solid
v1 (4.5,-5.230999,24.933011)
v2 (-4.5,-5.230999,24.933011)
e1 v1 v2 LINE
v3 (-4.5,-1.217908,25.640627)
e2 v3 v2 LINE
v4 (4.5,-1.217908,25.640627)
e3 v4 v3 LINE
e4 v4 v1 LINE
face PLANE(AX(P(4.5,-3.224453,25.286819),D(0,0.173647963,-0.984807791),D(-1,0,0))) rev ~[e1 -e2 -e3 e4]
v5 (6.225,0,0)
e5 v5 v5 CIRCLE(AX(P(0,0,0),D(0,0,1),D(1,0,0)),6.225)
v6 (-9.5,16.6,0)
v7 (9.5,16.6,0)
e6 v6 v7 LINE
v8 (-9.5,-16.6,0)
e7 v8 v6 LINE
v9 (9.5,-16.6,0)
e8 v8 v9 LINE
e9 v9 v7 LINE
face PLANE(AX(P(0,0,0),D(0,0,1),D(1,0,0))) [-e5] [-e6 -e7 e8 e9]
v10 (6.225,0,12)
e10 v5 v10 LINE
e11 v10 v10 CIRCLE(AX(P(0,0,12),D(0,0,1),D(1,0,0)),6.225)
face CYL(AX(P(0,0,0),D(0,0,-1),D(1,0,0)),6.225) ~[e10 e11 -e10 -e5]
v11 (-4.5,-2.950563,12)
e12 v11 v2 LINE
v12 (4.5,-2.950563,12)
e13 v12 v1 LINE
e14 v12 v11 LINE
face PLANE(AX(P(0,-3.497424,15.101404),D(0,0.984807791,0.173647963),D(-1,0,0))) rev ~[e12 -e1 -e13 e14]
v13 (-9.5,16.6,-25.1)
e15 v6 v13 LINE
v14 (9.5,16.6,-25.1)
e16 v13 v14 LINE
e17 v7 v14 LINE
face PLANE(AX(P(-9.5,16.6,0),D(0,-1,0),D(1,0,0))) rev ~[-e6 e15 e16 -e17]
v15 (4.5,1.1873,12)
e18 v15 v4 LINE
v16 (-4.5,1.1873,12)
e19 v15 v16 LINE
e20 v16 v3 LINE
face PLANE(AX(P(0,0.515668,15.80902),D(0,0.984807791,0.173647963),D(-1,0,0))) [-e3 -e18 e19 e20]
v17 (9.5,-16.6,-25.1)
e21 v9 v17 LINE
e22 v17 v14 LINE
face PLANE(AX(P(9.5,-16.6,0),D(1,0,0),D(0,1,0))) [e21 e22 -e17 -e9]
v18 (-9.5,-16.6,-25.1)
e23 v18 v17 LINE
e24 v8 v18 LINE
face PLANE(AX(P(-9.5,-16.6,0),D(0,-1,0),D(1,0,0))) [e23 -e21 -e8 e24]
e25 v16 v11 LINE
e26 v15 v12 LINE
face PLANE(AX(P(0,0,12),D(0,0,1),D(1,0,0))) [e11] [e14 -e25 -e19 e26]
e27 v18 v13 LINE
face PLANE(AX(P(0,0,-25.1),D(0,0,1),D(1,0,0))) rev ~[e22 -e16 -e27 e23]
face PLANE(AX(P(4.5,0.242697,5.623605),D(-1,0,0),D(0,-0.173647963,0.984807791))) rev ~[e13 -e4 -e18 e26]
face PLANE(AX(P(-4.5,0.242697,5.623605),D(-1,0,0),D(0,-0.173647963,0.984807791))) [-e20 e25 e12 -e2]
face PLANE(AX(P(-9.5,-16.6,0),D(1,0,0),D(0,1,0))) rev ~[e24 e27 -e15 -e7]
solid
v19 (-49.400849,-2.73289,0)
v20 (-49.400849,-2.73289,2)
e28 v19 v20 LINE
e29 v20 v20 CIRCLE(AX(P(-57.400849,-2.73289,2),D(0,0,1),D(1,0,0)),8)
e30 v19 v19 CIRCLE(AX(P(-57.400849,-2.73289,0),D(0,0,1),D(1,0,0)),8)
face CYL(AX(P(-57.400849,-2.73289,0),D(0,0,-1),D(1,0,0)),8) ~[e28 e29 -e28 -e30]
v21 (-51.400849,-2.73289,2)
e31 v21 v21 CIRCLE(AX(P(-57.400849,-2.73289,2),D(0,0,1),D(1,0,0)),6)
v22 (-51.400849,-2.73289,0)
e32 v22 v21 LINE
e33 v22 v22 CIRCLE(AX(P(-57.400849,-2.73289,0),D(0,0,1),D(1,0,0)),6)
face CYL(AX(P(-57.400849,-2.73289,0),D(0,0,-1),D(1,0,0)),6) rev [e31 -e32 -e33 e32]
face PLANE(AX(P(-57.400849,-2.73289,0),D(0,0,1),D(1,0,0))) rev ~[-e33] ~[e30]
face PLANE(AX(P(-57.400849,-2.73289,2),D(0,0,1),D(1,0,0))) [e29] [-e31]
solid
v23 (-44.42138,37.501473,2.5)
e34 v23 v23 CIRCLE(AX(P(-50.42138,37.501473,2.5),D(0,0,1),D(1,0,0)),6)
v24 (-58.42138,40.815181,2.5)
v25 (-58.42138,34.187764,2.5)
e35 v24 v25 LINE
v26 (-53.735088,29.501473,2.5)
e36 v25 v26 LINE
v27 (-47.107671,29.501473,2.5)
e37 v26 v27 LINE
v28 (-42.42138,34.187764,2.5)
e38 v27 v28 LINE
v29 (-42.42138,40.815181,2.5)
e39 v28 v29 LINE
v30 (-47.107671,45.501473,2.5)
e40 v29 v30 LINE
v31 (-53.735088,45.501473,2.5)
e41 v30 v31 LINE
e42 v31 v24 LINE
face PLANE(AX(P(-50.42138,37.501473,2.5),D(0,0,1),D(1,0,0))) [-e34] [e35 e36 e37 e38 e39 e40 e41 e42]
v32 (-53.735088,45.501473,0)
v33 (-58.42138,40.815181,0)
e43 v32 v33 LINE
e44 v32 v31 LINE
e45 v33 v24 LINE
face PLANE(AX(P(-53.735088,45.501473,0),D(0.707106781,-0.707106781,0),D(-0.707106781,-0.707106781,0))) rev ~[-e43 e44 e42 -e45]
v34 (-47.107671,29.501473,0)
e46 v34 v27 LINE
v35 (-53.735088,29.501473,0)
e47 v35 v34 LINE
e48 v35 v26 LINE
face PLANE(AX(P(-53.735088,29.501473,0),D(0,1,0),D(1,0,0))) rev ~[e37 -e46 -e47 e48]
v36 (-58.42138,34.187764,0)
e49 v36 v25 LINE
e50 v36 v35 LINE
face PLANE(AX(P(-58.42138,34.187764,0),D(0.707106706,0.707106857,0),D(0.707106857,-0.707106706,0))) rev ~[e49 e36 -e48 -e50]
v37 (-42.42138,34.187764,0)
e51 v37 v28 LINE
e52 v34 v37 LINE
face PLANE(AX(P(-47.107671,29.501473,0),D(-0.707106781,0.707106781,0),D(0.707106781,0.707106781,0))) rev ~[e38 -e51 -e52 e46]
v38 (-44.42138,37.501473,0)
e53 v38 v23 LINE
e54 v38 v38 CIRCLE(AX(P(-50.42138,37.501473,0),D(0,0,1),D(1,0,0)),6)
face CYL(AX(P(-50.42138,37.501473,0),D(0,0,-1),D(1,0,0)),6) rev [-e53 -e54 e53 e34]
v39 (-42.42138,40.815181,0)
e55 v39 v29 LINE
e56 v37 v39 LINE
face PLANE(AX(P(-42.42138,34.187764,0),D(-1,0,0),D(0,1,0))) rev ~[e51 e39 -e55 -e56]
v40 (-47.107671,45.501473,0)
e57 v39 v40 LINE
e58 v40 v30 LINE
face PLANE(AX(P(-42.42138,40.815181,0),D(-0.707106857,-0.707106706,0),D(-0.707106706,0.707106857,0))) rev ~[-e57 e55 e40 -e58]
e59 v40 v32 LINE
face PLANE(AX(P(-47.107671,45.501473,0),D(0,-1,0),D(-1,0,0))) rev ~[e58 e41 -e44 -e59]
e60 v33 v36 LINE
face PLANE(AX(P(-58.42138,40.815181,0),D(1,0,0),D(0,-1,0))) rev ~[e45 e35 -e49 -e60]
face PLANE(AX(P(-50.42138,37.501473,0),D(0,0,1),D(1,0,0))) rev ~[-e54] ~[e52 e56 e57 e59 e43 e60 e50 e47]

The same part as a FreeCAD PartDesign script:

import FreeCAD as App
import Part
import Sketcher
Q = App.Units.Quantity


def add_polygon(sketch, points):
    """Adds a closed chain of lines whose ends are joined by coincident constraints."""
    first, n = sketch.GeometryCount, len(points)
    for a, b in zip(points, points[1:] + points[:1]):
        sketch.addGeometry(Part.LineSegment(App.Vector(*a, 0), App.Vector(*b, 0)), False)
    for i in range(n):
        sketch.addConstraint(Sketcher.Constraint("Coincident", first + i, 2, first + (i + 1) % n, 1))

doc = App.newDocument("Part")
params = doc.addObject("Spreadsheet::Sheet", "Params")
for row, (alias, value) in enumerate([
    ("sketch1_width", "19 mm"),
    ("sketch1_height", "33.2 mm"),
    ("pad1_length", "25.1 mm"),
    ("sketch2_diameter", "12.45 mm"),
    ("pad2_length", "12 mm"),
    ("sketch3_width", "9 mm"),
    ("pad3_length", "4.075 mm"),
    ("sketch4_diameter", "16 mm"),
    ("sketch4_diameter2", "12 mm"),
    ("pad4_length", "2 mm"),
    ("sketch5_diameter", "12 mm"),
    ("pad5_length", "2.5 mm"),
], start=1):
    params.set(f"A{row}", alias)
    params.set(f"B{row}", "=" + value)
    params.setAlias(f"B{row}", alias)

body = doc.addObject("PartDesign::Body", "Body")

# Sketch on XY plane
sketch1 = body.newObject("Sketcher::SketchObject", "Sketch")
sketch1.AttachmentSupport = (doc.getObject("XY_Plane"), [""])
sketch1.MapMode = "FlatFace"
add_polygon(sketch1, [(-10, 17), (-10, -17), (10, -17), (10, 17)])  # lines 0-3
sketch1.addConstraint([
    Sketcher.Constraint("Vertical", 0),
    Sketcher.Constraint("Horizontal", 1),
    Sketcher.Constraint("Vertical", 2),
    Sketcher.Constraint("Horizontal", 3),
    Sketcher.Constraint("Symmetric", 0, 2, 2, 2, -1, 1),
    Sketcher.Constraint("DistanceX", 1, 1, 1, 2, Q("19 mm")),
    Sketcher.Constraint("DistanceY", 0, 2, 0, 1, Q("33.2 mm")),
])
sketch1.setExpression("Constraints[9]", "Params.sketch1_width")
sketch1.setExpression("Constraints[10]", "Params.sketch1_height")
pad1 = body.newObject("PartDesign::Pad", "Pad")
pad1.Profile = sketch1
pad1.setExpression("Length", "Params.pad1_length")
pad1.Reversed = True

# Sketch on XY plane
sketch2 = body.newObject("Sketcher::SketchObject", "Sketch001")
sketch2.AttachmentSupport = (doc.getObject("XY_Plane"), [""])
sketch2.MapMode = "FlatFace"
sketch2.addGeometry(Part.Circle(App.Vector(0, 0, 0), App.Vector(0, 0, 1), 6), False)
sketch2.addConstraint([
    Sketcher.Constraint("Coincident", 0, 3, -1, 1),
    Sketcher.Constraint("Diameter", 0, Q("12.45 mm")),
])
sketch2.setExpression("Constraints[1]", "Params.sketch2_diameter")
pad2 = body.newObject("PartDesign::Pad", "Pad001")
pad2.Profile = sketch2
pad2.setExpression("Length", "Params.pad2_length")

# Sketch on an angled plane
sketch3 = body.newObject("Sketcher::SketchObject", "Sketch002")
sketch3.Placement = App.Placement(App.Vector(0, 1.197071, 0.211076), App.Rotation(App.Vector(-1, 0, 0), App.Vector(0, -0.173647963, 0.984807791), App.Vector(0, 0.984807791, 0.173647963), "ZXY"))
add_polygon(sketch3, [(-4, 25), (-4, 5), (4, 5), (4, 25)])  # lines 0-3
sketch3.addConstraint([
    Sketcher.Constraint("Vertical", 0),
    Sketcher.Constraint("Horizontal", 1),
    Sketcher.Constraint("Vertical", 2),
    Sketcher.Constraint("Horizontal", 3),
    Sketcher.Constraint("DistanceX", 1, 1, 1, 2, Q("9 mm")),
    Sketcher.Constraint("DistanceX", 0, 2, -1, 1, Q("4.5 mm")),
    Sketcher.Constraint("DistanceY", 0, 2, 0, 1, Q("19.96655 mm")),
    Sketcher.Constraint("DistanceY", -1, 1, 0, 2, Q("5.496026 mm")),
])
sketch3.setExpression("Constraints[8]", "Params.sketch3_width")
pad3 = body.newObject("PartDesign::Pad", "Pad002")
pad3.Profile = sketch3
pad3.setExpression("Length", "Params.pad3_length")
pad3.Midplane = True
body2 = doc.addObject("PartDesign::Body", "Body001")

# Sketch on XY plane
sketch4 = body2.newObject("Sketcher::SketchObject", "Sketch003")
sketch4.AttachmentSupport = (doc.getObject("XY_Plane001"), [""])
sketch4.MapMode = "FlatFace"
sketch4.addGeometry([
    Part.Circle(App.Vector(-57, -3, 0), App.Vector(0, 0, 1), 8),
    Part.Circle(App.Vector(-57, -3, 0), App.Vector(0, 0, 1), 6),
], False)
sketch4.addConstraint([
    Sketcher.Constraint("Coincident", 1, 3, 0, 3),
    Sketcher.Constraint("Diameter", 0, Q("16 mm")),
    Sketcher.Constraint("Diameter", 1, Q("12 mm")),
    Sketcher.Constraint("DistanceX", 0, 3, -1, 1, Q("57.400849 mm")),
    Sketcher.Constraint("DistanceY", 0, 3, -1, 1, Q("2.73289 mm")),
])
sketch4.setExpression("Constraints[1]", "Params.sketch4_diameter")
sketch4.setExpression("Constraints[2]", "Params.sketch4_diameter2")
pad4 = body2.newObject("PartDesign::Pad", "Pad003")
pad4.Profile = sketch4
pad4.setExpression("Length", "Params.pad4_length")
body3 = doc.addObject("PartDesign::Body", "Body002")

# Sketch on XY plane
sketch5 = body3.newObject("Sketcher::SketchObject", "Sketch004")
sketch5.AttachmentSupport = (doc.getObject("XY_Plane002"), [""])
sketch5.MapMode = "FlatFace"
add_polygon(sketch5, [(-47, 46), (-54, 46), (-58, 41), (-58, 34), (-54, 30), (-47, 30), (-42, 34), (-42, 41)])  # lines 0-7
sketch5.addGeometry(Part.Circle(App.Vector(-50, 38, 0), App.Vector(0, 0, 1), 6), False)  # 8
sketch5.addConstraint([
    Sketcher.Constraint("Horizontal", 0),
    Sketcher.Constraint("Vertical", 2),
    Sketcher.Constraint("Horizontal", 4),
    Sketcher.Constraint("Vertical", 6),
    Sketcher.Constraint("Perpendicular", 1, 3),
    Sketcher.Constraint("Perpendicular", 3, 5),
    Sketcher.Constraint("Perpendicular", 5, 7),
    Sketcher.Constraint("Horizontal", 2, 2, 5, 2),
    Sketcher.Constraint("Horizontal", 1, 2, 6, 2),
    Sketcher.Constraint("Vertical", 0, 2, 3, 2),
    Sketcher.Constraint("Vertical", 4, 2, 7, 2),
    Sketcher.Constraint("Equal", 4, 2),
    Sketcher.Constraint("Diameter", 8, Q("12 mm")),
    Sketcher.Constraint("DistanceY", 8, 3, 0, 2, Q("8 mm")),
    Sketcher.Constraint("DistanceX", 1, 2, 8, 3, Q("8 mm")),
    Sketcher.Constraint("DistanceY", 3, 2, 8, 3, Q("8 mm")),
    Sketcher.Constraint("DistanceX", 0, 2, 0, 1, Q("6.627417 mm")),
    Sketcher.Constraint("DistanceX", 8, 3, -1, 1, Q("50.42138 mm")),
    Sketcher.Constraint("DistanceY", -1, 1, 1, 2, Q("40.815181 mm")),
])
sketch5.setExpression("Constraints[20]", "Params.sketch5_diameter")
pad5 = body3.newObject("PartDesign::Pad", "Pad004")
pad5.Profile = sketch5
pad5.setExpression("Length", "Params.pad5_length")

doc.recompute()
